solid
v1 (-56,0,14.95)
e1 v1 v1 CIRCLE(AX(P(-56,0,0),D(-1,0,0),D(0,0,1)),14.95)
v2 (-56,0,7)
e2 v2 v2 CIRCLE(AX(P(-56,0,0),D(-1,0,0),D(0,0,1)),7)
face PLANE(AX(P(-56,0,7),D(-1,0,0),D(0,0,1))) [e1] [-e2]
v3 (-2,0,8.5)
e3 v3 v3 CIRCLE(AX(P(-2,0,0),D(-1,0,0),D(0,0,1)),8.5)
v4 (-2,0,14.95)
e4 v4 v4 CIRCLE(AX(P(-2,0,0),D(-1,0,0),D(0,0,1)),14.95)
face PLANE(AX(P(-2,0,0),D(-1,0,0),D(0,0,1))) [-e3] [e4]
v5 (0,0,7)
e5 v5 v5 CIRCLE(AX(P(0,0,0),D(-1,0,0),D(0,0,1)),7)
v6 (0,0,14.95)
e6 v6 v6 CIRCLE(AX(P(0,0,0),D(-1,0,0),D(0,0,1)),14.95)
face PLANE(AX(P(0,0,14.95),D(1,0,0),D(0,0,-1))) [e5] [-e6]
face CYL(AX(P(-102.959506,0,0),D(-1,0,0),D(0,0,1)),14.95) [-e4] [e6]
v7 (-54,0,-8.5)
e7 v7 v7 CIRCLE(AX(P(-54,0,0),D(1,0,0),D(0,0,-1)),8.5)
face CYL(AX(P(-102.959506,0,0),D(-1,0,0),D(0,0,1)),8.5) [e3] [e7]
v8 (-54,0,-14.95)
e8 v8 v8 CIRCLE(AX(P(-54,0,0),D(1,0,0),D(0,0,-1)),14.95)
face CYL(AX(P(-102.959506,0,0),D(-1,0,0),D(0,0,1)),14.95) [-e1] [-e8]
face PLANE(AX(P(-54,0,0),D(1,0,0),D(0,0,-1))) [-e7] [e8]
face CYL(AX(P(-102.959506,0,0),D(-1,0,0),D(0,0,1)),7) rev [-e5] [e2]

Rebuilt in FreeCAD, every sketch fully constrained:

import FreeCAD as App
import Part
import Sketcher
Q = App.Units.Quantity


def add_polygon(sketch, points):
    """Adds a closed chain of lines whose ends are joined by coincident constraints."""
    first, n = sketch.GeometryCount, len(points)
    for a, b in zip(points, points[1:] + points[:1]):
        sketch.addGeometry(Part.LineSegment(App.Vector(*a, 0), App.Vector(*b, 0)), False)
    for i in range(n):
        sketch.addConstraint(Sketcher.Constraint("Coincident", first + i, 2, first + (i + 1) % n, 1))

doc = App.newDocument("Part")
body = doc.addObject("PartDesign::Body", "Body")

# Sketch on XZ plane
sketch1 = doc.addObject("Sketcher::SketchObject", "Sketch")
body.addObject(sketch1)
sketch1.AttachmentSupport = (doc.XZ_Plane, [""])
sketch1.MapMode = "FlatFace"
add_polygon(sketch1, [(-56, 7), (-56, 14.9), (-53, 14.9), (-53, 8.5), (-3, 8.5), (-3, 14.9), (0, 14.9), (0, 7)])  # lines 0-7
sketch1.addConstraint([
    Sketcher.Constraint("Vertical", 0),
    Sketcher.Constraint("Horizontal", 1),
    Sketcher.Constraint("Vertical", 2),
    Sketcher.Constraint("Horizontal", 3),
    Sketcher.Constraint("Vertical", 4),
    Sketcher.Constraint("Horizontal", 5),
    Sketcher.Constraint("Vertical", 6),
    Sketcher.Constraint("Horizontal", 7),
    Sketcher.Constraint("PointOnObject", 5, 2, -2),
    Sketcher.Constraint("Horizontal", 1, 2, 4, 2),
    Sketcher.Constraint("Equal", 1, 5),
    Sketcher.Constraint("DistanceX", 1, 1, 1, 2, Q("3 mm")),
    Sketcher.Constraint("DistanceX", 3, 1, 3, 2, Q("50 mm")),
    Sketcher.Constraint("DistanceY", -1, 1, 6, 2, Q("7 mm")),
    Sketcher.Constraint("DistanceY", 0, 1, 0, 2, Q("7.95 mm")),
    Sketcher.Constraint("DistanceY", 2, 2, 2, 1, Q("6.45 mm")),
])
revolution = doc.addObject("PartDesign::Revolution", "Revolution")
body.addObject(revolution)
revolution.Profile = sketch1
revolution.ReferenceAxis = (sketch1, ["H_Axis"])
revolution.Angle = 360

# Sketch on YZ plane
sketch2 = doc.addObject("Sketcher::SketchObject", "Sketch001")
body.addObject(sketch2)
sketch2.AttachmentSupport = (doc.YZ_Plane, [""])
sketch2.MapMode = "FlatFace"
sketch2.AttachmentOffset = App.Placement(App.Vector(0, 0, -53), App.Rotation())
sketch2.addGeometry([
    Part.Circle(App.Vector(0, 0, 0), App.Vector(0, 0, 1), 15),
    Part.Circle(App.Vector(0, 0, 0), App.Vector(0, 0, 1), 8),
], False)
sketch2.addConstraint([
    Sketcher.Constraint("Coincident", 0, 3, -1, 1),
    Sketcher.Constraint("Coincident", 1, 3, -1, 1),
    Sketcher.Constraint("Diameter", 1, Q("17 mm")),
    Sketcher.Constraint("Diameter", 0, Q("29.9 mm")),
])
pocket1 = doc.addObject("PartDesign::Pocket", "Pocket")
body.addObject(pocket1)
pocket1.Profile = sketch2
pocket1.Length = 1

# Sketch on YZ plane
sketch3 = doc.addObject("Sketcher::SketchObject", "Sketch002")
body.addObject(sketch3)
sketch3.AttachmentSupport = (doc.YZ_Plane, [""])
sketch3.MapMode = "FlatFace"
sketch3.AttachmentOffset = App.Placement(App.Vector(0, 0, -3), App.Rotation())
sketch3.addGeometry([
    Part.Circle(App.Vector(0, 0, 0), App.Vector(0, 0, 1), 15),
    Part.Circle(App.Vector(0, 0, 0), App.Vector(0, 0, 1), 8),
], False)
sketch3.addConstraint([
    Sketcher.Constraint("Coincident", 0, 3, -1, 1),
    Sketcher.Constraint("Coincident", 1, 3, -1, 1),
    Sketcher.Constraint("Diameter", 1, Q("17 mm")),
    Sketcher.Constraint("Diameter", 0, Q("29.9 mm")),
])
pocket2 = doc.addObject("PartDesign::Pocket", "Pocket001")
body.addObject(pocket2)
pocket2.Profile = sketch3
pocket2.Length = 1
pocket2.Reversed = True

doc.recompute()
